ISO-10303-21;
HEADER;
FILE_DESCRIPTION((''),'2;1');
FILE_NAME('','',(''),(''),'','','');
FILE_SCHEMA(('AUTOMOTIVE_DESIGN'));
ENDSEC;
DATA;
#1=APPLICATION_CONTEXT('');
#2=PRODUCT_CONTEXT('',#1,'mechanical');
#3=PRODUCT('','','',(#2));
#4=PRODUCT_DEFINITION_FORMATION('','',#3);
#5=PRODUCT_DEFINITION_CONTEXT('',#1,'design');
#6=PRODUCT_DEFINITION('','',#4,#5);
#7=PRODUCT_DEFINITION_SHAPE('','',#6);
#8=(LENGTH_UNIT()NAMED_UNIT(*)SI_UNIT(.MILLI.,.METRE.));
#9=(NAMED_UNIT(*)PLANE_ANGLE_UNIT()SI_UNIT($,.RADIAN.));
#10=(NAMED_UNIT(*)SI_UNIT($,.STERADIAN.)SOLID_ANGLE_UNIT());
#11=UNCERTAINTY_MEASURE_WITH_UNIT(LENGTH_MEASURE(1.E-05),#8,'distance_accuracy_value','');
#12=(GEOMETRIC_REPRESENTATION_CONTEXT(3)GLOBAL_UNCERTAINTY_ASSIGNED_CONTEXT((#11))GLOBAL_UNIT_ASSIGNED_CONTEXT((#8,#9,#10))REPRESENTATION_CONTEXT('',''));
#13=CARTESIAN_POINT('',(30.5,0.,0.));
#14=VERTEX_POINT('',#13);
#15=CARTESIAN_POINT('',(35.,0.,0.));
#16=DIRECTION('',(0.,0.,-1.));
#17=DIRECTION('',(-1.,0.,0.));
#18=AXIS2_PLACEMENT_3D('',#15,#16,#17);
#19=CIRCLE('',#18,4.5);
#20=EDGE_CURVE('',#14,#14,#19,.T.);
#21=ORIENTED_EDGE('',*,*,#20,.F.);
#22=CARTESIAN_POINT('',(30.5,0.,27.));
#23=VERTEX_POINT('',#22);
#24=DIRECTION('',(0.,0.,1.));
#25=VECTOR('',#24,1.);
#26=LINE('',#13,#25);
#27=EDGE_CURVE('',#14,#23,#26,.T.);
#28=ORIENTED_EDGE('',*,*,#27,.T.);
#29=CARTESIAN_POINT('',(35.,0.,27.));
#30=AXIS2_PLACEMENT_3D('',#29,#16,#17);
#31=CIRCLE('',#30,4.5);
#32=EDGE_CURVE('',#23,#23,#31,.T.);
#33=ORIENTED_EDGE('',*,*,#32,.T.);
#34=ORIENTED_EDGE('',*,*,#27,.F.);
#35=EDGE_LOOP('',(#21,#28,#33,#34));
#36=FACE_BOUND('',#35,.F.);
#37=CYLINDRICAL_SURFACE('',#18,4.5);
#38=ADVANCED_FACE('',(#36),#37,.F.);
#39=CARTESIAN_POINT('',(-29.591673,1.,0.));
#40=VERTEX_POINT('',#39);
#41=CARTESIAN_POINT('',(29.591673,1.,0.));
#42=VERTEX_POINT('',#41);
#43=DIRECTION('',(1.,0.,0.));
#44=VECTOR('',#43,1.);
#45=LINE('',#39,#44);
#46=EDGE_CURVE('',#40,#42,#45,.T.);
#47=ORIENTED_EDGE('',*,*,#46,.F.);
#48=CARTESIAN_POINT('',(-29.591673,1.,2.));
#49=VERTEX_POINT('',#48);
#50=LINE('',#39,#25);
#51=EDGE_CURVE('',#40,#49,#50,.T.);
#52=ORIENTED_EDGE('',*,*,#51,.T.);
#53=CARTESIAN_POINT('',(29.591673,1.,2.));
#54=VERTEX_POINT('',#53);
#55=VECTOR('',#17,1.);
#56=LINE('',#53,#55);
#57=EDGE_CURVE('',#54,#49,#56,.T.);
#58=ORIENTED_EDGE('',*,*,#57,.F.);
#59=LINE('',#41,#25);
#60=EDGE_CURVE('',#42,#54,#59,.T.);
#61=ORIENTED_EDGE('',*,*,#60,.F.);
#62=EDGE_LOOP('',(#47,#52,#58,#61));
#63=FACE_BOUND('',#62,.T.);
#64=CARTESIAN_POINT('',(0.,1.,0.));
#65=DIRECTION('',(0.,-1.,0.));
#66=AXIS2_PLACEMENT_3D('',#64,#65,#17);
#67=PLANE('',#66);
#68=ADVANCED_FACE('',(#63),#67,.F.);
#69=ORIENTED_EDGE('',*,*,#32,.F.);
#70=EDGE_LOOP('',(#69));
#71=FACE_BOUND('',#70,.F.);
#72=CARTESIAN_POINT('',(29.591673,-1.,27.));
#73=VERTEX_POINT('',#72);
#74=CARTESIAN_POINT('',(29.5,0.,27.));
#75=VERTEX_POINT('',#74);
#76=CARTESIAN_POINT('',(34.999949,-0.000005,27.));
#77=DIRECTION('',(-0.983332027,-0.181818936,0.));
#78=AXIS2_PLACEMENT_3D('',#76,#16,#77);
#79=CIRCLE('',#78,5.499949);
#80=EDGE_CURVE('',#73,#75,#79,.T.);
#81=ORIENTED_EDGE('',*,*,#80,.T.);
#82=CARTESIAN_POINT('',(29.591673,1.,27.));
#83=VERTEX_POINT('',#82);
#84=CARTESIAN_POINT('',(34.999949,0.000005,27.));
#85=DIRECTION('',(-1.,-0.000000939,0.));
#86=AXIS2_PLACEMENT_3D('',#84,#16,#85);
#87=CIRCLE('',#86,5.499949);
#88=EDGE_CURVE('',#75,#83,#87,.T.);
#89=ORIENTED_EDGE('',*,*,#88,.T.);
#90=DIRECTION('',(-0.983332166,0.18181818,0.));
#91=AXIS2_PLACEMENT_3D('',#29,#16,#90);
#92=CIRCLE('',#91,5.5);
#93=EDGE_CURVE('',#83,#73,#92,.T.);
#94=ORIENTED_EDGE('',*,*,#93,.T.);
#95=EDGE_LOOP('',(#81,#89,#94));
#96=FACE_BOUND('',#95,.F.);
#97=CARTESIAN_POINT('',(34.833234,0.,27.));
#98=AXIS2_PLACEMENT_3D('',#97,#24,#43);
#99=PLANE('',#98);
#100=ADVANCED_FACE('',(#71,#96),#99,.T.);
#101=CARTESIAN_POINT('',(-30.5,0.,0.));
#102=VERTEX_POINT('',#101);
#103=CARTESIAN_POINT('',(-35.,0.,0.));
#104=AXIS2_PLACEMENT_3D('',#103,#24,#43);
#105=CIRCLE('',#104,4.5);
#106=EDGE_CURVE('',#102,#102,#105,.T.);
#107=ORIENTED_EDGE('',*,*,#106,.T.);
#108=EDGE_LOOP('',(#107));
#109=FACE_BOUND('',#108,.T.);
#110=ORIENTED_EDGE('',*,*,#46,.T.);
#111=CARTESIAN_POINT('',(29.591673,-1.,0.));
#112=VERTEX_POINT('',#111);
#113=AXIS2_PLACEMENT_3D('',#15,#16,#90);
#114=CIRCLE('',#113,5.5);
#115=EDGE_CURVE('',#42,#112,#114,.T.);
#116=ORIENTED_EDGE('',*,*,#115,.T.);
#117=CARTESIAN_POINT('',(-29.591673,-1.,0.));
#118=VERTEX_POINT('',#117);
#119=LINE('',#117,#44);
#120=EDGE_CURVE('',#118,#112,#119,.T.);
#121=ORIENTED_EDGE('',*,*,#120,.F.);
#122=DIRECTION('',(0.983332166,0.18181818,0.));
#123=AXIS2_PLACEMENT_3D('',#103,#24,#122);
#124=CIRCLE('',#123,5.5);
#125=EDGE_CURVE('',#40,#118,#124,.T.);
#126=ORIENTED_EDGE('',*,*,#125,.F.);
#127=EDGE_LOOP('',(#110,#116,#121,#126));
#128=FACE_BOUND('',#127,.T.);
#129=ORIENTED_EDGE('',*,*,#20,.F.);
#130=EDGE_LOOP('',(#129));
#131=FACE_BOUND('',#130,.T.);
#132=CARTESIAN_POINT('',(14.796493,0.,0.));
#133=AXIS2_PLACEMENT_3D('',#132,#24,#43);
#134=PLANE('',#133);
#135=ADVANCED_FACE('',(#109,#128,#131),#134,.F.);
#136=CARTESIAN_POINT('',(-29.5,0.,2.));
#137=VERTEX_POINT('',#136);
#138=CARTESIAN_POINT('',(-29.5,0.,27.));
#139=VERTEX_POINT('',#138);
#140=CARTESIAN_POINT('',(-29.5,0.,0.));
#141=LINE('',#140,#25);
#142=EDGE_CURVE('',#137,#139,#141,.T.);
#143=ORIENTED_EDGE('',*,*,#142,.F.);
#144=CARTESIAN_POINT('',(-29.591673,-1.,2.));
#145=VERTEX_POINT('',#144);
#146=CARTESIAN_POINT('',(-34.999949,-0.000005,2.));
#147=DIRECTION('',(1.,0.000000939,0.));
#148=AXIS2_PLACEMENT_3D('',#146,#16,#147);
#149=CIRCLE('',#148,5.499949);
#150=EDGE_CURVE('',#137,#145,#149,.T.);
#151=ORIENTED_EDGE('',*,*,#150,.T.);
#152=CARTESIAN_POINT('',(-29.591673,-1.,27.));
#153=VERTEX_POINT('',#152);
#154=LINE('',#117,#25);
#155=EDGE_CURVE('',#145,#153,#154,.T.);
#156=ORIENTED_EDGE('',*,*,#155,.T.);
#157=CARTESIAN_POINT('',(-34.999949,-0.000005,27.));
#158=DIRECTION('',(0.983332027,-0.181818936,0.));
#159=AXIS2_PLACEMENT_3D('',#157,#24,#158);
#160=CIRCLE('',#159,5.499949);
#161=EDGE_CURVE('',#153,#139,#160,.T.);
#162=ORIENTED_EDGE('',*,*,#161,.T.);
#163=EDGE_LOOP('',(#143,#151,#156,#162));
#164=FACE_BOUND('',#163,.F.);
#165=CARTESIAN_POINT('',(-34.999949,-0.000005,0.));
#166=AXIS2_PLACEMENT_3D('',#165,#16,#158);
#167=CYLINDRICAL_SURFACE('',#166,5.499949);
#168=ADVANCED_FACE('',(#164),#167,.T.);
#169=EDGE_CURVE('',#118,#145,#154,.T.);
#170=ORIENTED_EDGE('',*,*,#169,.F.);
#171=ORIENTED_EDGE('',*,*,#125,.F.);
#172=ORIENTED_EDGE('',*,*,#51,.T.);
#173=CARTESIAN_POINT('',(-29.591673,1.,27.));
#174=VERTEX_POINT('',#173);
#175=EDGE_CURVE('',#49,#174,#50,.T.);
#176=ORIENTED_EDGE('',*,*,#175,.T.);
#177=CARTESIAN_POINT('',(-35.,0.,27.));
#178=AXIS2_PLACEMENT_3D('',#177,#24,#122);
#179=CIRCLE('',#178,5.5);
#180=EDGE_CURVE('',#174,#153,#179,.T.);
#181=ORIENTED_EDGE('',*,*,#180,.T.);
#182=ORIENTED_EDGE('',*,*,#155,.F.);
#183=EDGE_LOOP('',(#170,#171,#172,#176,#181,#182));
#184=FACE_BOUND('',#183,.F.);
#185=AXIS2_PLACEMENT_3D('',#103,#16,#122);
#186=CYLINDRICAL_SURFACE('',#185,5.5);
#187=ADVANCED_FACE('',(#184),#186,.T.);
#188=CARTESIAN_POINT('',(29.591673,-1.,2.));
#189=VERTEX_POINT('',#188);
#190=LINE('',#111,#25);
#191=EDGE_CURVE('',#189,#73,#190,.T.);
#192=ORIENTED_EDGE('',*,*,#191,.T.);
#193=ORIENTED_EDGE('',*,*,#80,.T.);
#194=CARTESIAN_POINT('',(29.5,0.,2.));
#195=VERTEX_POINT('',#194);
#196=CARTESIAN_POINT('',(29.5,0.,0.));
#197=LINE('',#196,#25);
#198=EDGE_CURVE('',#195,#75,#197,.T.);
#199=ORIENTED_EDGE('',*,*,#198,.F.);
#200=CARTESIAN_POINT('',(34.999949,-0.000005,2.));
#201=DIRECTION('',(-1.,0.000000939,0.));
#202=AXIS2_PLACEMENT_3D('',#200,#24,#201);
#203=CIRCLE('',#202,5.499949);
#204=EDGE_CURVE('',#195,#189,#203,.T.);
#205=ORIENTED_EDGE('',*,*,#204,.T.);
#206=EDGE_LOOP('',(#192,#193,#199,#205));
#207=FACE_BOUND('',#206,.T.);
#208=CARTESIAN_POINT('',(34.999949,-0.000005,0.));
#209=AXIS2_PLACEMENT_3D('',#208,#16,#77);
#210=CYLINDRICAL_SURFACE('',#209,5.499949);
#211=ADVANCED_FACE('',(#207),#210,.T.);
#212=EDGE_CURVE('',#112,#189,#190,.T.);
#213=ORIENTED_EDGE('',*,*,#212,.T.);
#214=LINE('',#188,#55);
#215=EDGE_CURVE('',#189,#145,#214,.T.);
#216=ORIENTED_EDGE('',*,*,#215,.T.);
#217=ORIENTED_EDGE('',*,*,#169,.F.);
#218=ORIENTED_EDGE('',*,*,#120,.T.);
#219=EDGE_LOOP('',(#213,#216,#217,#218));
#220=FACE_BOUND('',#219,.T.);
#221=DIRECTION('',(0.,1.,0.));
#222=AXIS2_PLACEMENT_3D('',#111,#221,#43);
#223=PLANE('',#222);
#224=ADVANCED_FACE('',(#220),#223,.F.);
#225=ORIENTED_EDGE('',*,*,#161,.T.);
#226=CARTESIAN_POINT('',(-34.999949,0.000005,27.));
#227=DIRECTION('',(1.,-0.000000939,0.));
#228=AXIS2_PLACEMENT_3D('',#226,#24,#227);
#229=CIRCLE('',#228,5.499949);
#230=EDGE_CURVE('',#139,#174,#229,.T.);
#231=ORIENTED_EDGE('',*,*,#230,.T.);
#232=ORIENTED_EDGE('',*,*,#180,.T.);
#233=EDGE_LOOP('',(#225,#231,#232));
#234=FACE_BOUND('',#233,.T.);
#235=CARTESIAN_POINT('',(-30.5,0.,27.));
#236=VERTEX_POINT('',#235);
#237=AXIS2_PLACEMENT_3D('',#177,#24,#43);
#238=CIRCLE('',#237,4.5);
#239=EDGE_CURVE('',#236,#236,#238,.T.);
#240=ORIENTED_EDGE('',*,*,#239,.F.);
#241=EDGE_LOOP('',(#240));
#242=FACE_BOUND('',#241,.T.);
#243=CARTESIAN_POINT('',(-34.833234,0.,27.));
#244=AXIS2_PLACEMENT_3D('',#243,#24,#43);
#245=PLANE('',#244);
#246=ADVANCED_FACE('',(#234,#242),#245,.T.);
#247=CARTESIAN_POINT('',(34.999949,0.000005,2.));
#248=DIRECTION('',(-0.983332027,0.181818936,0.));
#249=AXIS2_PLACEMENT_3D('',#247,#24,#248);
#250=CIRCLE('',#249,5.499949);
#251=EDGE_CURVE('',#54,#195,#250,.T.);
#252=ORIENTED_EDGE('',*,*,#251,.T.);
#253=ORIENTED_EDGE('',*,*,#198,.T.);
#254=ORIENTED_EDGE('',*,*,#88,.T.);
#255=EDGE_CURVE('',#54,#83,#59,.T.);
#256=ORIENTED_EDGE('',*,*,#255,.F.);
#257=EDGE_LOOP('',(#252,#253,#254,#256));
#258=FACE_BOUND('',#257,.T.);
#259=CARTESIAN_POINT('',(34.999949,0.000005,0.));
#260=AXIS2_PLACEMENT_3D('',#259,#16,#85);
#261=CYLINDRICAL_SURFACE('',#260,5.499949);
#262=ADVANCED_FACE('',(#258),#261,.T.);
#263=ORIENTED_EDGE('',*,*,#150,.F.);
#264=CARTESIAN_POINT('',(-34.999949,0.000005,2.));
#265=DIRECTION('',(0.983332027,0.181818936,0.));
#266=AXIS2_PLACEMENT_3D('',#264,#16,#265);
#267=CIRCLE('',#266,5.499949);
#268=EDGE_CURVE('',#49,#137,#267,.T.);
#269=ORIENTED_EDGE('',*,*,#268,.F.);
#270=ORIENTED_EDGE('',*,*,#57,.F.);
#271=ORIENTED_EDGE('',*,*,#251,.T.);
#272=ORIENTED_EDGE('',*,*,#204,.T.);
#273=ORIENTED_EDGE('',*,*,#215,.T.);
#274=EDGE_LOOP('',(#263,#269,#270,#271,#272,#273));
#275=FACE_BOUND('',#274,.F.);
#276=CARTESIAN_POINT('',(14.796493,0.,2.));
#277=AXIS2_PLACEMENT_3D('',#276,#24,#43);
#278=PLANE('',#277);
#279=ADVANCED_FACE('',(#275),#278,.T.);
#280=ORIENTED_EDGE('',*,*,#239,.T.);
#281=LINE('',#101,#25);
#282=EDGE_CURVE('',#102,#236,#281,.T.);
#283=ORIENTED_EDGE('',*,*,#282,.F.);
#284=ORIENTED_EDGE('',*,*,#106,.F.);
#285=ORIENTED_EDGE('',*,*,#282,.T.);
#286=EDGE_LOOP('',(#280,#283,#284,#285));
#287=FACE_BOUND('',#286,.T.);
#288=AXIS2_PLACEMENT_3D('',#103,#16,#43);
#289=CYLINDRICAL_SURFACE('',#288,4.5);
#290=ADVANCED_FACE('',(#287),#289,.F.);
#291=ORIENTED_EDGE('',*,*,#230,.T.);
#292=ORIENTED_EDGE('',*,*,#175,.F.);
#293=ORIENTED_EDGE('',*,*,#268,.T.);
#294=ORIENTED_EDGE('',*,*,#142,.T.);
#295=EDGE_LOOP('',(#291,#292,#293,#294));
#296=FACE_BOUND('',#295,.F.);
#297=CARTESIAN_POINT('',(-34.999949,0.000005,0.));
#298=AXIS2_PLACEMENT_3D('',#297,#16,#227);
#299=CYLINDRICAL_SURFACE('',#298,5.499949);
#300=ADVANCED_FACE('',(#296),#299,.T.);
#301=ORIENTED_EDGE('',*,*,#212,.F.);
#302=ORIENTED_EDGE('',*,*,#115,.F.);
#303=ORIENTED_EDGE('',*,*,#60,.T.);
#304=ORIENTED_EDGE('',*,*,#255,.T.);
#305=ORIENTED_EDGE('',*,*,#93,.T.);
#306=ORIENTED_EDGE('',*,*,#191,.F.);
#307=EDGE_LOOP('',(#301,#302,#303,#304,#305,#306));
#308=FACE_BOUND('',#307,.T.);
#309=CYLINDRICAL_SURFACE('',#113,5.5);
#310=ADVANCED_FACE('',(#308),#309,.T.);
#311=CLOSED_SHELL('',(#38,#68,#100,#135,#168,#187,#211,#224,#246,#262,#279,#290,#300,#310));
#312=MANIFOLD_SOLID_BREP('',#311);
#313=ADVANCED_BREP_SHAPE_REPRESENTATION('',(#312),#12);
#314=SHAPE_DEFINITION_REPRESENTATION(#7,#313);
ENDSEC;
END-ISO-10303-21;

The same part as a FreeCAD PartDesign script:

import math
import FreeCAD as App
import Part
import Sketcher

doc = App.newDocument("Part")
body = doc.addObject("PartDesign::Body", "Body")

# Sketch on XY plane
sketch1 = body.newObject("Sketcher::SketchObject", "Sketch")
sketch1.AttachmentSupport = (doc.getObject("XY_Plane"), [""])
sketch1.MapMode = "FlatFace"
sketch1.addGeometry(Part.ArcOfCircle(Part.Circle(App.Vector(-34.999949, -0.000005, 0), App.Vector(0, 0, 1), 5.499949), math.radians(-10.475726), math.radians(0.000054)), False)
sketch1.addGeometry(Part.ArcOfCircle(Part.Circle(App.Vector(-34.999949, 0.000005, 0), App.Vector(0, 0, 1), 5.499949), math.radians(-0.000054), math.radians(10.475726)), False)
sketch1.addGeometry(Part.ArcOfCircle(Part.Circle(App.Vector(-35, 0, 0), App.Vector(0, 0, 1), 5.5), math.radians(10.475682), math.radians(349.524318)), False)
sketch1.addGeometry(Part.Circle(App.Vector(-35, 0, 0), App.Vector(0, 0, 1), 4.5), False)
sketch1.addConstraint(Sketcher.Constraint("Coincident", 0, 2, 1, 1))
sketch1.addConstraint(Sketcher.Constraint("Coincident", 1, 2, 2, 1))
sketch1.addConstraint(Sketcher.Constraint("Coincident", 2, 2, 0, 1))
sketch1.addConstraint(Sketcher.Constraint("Coincident", 3, 3, 2, 3))
sketch1.addConstraint(Sketcher.Constraint("PointOnObject", 2, 3, -1))
sketch1.addConstraint(Sketcher.Constraint("PointOnObject", 0, 2, -1))
sketch1.addConstraint(Sketcher.Constraint("Diameter", 3, 9.0))
sketch1.addConstraint(Sketcher.Constraint("Radius", 2, 5.5))
sketch1.addConstraint(Sketcher.Constraint("DistanceX", 2, 3, -1, 1, 35.0))
sketch1.addConstraint(Sketcher.Constraint("DistanceY", -1, 1, 1, 2, 1.0))
sketch1.addConstraint(Sketcher.Constraint("DistanceY", 2, 2, -1, 1, 1.0))
sketch1.addConstraint(Sketcher.Constraint("DistanceX", 0, 2, -1, 1, 29.5))
sketch1.addConstraint(Sketcher.Constraint("Radius", 0, 5.499949))
sketch1.addConstraint(Sketcher.Constraint("Radius", 1, 5.499949))
pad1 = body.newObject("PartDesign::Pad", "Pad")
pad1.Profile = sketch1
pad1.Length = 27

# Sketch on XY plane
sketch2 = body.newObject("Sketcher::SketchObject", "Sketch001")
sketch2.AttachmentSupport = (doc.getObject("XY_Plane"), [""])
sketch2.MapMode = "FlatFace"
sketch2.addGeometry(Part.ArcOfCircle(Part.Circle(App.Vector(-34.999949, 0.000005, 0), App.Vector(0, 0, 1), 5.499949), math.radians(-0.000054), math.radians(10.475726)), False)
sketch2.addGeometry(Part.ArcOfCircle(Part.Circle(App.Vector(-34.999949, -0.000005, 0), App.Vector(0, 0, 1), 5.499949), math.radians(-10.475726), math.radians(0.000054)), False)
sketch2.addGeometry(Part.LineSegment(App.Vector(-29.591673, -1, 0), App.Vector(0, -1, 0)), False)
sketch2.addGeometry(Part.LineSegment(App.Vector(0, -1, 0), App.Vector(0, 1, 0)), False)
sketch2.addGeometry(Part.LineSegment(App.Vector(0, 1, 0), App.Vector(-29.591673, 1, 0)), False)
sketch2.addConstraint(Sketcher.Constraint("Tangent", 0, 1, 1, 2))
sketch2.addConstraint(Sketcher.Constraint("Coincident", 1, 1, 2, 1))
sketch2.addConstraint(Sketcher.Constraint("Coincident", 2, 2, 3, 1))
sketch2.addConstraint(Sketcher.Constraint("Coincident", 3, 2, 4, 1))
sketch2.addConstraint(Sketcher.Constraint("Coincident", 4, 2, 0, 2))
sketch2.addConstraint(Sketcher.Constraint("Horizontal", 2))
sketch2.addConstraint(Sketcher.Constraint("Vertical", 3))
sketch2.addConstraint(Sketcher.Constraint("Horizontal", 4))
sketch2.addConstraint(Sketcher.Constraint("Equal", 0, 1))
sketch2.addConstraint(Sketcher.Constraint("Symmetric", 2, 2, 3, 2, -1, 1))
sketch2.addConstraint(Sketcher.Constraint("PointOnObject", 0, 1, -1))
sketch2.addConstraint(Sketcher.Constraint("Vertical", 1, 1, 4, 2))
sketch2.addConstraint(Sketcher.Constraint("DistanceY", 3, 1, 3, 2, 2.0))
sketch2.addConstraint(Sketcher.Constraint("DistanceX", 0, 1, -1, 1, 29.5))
sketch2.addConstraint(Sketcher.Constraint("Radius", 0, 5.499949))
pad2 = body.newObject("PartDesign::Pad", "Pad001")
pad2.Profile = sketch2
pad2.Length = 2
body2 = doc.addObject("PartDesign::Body", "Body001")
doc.recompute()

body2.BaseFeature = body
doc.recompute()

mirroring = doc.addObject("Part::Mirroring", "Mirroring")
mirroring.Source = body
mirroring.Base = App.Vector(0, 0, 0)
mirroring.Normal = App.Vector(1, 0, 0)
body3 = doc.addObject("PartDesign::Body", "Body002")
body3.BaseFeature = mirroring
boolean = body2.newObject("PartDesign::Boolean", "Boolean")
boolean.Type = "Fuse"
boolean.addObjects([body3])
doc.recompute()
mirroring.Visibility = False

doc.recompute()
